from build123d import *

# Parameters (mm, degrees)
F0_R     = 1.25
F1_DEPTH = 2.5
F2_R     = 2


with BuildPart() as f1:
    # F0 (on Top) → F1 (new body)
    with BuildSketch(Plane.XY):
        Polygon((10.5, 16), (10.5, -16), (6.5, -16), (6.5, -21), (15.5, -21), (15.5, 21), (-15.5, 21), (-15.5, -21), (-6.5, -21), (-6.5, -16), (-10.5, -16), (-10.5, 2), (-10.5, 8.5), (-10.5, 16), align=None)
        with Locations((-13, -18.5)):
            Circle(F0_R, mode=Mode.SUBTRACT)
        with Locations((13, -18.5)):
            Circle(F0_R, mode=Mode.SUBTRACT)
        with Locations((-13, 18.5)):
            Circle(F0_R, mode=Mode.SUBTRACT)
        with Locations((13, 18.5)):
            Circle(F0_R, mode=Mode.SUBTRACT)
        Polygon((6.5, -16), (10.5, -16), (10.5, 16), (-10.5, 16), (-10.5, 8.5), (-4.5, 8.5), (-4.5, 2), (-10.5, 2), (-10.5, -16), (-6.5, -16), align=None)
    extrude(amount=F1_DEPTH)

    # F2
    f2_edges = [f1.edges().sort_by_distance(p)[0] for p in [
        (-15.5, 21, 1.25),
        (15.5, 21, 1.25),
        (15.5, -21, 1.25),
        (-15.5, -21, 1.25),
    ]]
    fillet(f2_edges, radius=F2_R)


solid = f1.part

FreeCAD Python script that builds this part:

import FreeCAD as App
import Part
import Sketcher
Q = App.Units.Quantity


def edges_at(feature, points):
    """Names of the edges that pass closest to the given points."""
    edges = feature.Shape.Edges
    near = lambda p: min(range(len(edges)), key=lambda i: edges[i].distToShape(Part.Vertex(*p))[0])
    return sorted({f"Edge{near(p) + 1}" for p in points})


def add_polygon(sketch, points):
    """Adds a closed chain of lines whose ends are joined by coincident constraints."""
    first, n = sketch.GeometryCount, len(points)
    for a, b in zip(points, points[1:] + points[:1]):
        sketch.addGeometry(Part.LineSegment(App.Vector(*a, 0), App.Vector(*b, 0)), False)
    for i in range(n):
        sketch.addConstraint(Sketcher.Constraint("Coincident", first + i, 2, first + (i + 1) % n, 1))

doc = App.newDocument("Part")
body = doc.addObject("PartDesign::Body", "Body")

# Sketch on XY plane
sketch1 = body.newObject("Sketcher::SketchObject", "Sketch")
sketch1.AttachmentSupport = (doc.getObject("XY_Plane"), [""])
sketch1.MapMode = "FlatFace"
add_polygon(sketch1, [(6.5, -16), (6.5, -21), (15.5, -21), (15.5, 21), (-15.5, 21), (-15.5, -21), (-6.5, -21), (-6.5, -16)])  # lines 0-7
add_polygon(sketch1, [(-10.5, 2), (-10.5, 8.5), (-4.5, 8.5), (-4.5, 2)])  # lines 8-11
sketch1.addGeometry(Part.Circle(App.Vector(-13, -18.5, 0), App.Vector(0, 0, 1), 1.25), False)  # 12
sketch1.addGeometry(Part.Circle(App.Vector(13, -18.5, 0), App.Vector(0, 0, 1), 1.25), False)  # 13
sketch1.addGeometry(Part.Circle(App.Vector(-13, 18.5, 0), App.Vector(0, 0, 1), 1.25), False)  # 14
sketch1.addGeometry(Part.Circle(App.Vector(13, 18.5, 0), App.Vector(0, 0, 1), 1.25), False)  # 15
sketch1.addConstraint([
    Sketcher.Constraint("Vertical", 0),
    Sketcher.Constraint("Horizontal", 1),
    Sketcher.Constraint("Vertical", 2),
    Sketcher.Constraint("Horizontal", 3),
    Sketcher.Constraint("Vertical", 4),
    Sketcher.Constraint("Horizontal", 5),
    Sketcher.Constraint("Vertical", 6),
    Sketcher.Constraint("Horizontal", 7),
    Sketcher.Constraint("Vertical", 8),
    Sketcher.Constraint("Horizontal", 9),
    Sketcher.Constraint("Vertical", 10),
    Sketcher.Constraint("Horizontal", 11),
    Sketcher.Constraint("Equal", 12, 13),
    Sketcher.Constraint("Equal", 13, 14),
    Sketcher.Constraint("Equal", 14, 15),
    Sketcher.Constraint("Symmetric", 13, 3, 14, 3, -1, 1),
    Sketcher.Constraint("Symmetric", 12, 3, 15, 3, -1, 1),
    Sketcher.Constraint("Symmetric", 1, 2, 3, 2, -1, 1),
    Sketcher.Constraint("Symmetric", 12, 3, 13, 3, -2),
    Sketcher.Constraint("Symmetric", 0, 2, 5, 2, -2),
    Sketcher.Constraint("Diameter", 12, Q("2.5 mm")),
    Sketcher.Constraint("DistanceX", 1, 1, 1, 2, Q("9 mm")),
    Sketcher.Constraint("DistanceX", 3, 2, 3, 1, Q("31 mm")),
    Sketcher.Constraint("DistanceX", 9, 1, 9, 2, Q("6 mm")),
    Sketcher.Constraint("DistanceY", 0, 2, 0, 1, Q("5 mm")),
    Sketcher.Constraint("DistanceY", 2, 1, 2, 2, Q("42 mm")),
    Sketcher.Constraint("DistanceY", 8, 1, 8, 2, Q("6.5 mm")),
    Sketcher.Constraint("DistanceX", 12, 3, -1, 1, Q("13 mm")),
    Sketcher.Constraint("DistanceY", -1, 1, 10, 2, Q("2 mm")),
    Sketcher.Constraint("DistanceY", 12, 3, 14, 3, Q("37 mm")),
    Sketcher.Constraint("DistanceX", 3, 2, 8, 2, Q("5 mm")),
])
pad1 = body.newObject("PartDesign::Pad", "Pad")
pad1.Profile = sketch1
pad1.Length = 2.5
doc.recompute()

fillet = body.newObject("PartDesign::Fillet", "Fillet")
fillet.Base = (pad1, edges_at(pad1, [
    (-15.5, 21, 1.25),
    (15.5, 21, 1.25),
    (15.5, -21, 1.25),
    (-15.5, -21, 1.25),
]))
fillet.Radius = 2

doc.recompute()
